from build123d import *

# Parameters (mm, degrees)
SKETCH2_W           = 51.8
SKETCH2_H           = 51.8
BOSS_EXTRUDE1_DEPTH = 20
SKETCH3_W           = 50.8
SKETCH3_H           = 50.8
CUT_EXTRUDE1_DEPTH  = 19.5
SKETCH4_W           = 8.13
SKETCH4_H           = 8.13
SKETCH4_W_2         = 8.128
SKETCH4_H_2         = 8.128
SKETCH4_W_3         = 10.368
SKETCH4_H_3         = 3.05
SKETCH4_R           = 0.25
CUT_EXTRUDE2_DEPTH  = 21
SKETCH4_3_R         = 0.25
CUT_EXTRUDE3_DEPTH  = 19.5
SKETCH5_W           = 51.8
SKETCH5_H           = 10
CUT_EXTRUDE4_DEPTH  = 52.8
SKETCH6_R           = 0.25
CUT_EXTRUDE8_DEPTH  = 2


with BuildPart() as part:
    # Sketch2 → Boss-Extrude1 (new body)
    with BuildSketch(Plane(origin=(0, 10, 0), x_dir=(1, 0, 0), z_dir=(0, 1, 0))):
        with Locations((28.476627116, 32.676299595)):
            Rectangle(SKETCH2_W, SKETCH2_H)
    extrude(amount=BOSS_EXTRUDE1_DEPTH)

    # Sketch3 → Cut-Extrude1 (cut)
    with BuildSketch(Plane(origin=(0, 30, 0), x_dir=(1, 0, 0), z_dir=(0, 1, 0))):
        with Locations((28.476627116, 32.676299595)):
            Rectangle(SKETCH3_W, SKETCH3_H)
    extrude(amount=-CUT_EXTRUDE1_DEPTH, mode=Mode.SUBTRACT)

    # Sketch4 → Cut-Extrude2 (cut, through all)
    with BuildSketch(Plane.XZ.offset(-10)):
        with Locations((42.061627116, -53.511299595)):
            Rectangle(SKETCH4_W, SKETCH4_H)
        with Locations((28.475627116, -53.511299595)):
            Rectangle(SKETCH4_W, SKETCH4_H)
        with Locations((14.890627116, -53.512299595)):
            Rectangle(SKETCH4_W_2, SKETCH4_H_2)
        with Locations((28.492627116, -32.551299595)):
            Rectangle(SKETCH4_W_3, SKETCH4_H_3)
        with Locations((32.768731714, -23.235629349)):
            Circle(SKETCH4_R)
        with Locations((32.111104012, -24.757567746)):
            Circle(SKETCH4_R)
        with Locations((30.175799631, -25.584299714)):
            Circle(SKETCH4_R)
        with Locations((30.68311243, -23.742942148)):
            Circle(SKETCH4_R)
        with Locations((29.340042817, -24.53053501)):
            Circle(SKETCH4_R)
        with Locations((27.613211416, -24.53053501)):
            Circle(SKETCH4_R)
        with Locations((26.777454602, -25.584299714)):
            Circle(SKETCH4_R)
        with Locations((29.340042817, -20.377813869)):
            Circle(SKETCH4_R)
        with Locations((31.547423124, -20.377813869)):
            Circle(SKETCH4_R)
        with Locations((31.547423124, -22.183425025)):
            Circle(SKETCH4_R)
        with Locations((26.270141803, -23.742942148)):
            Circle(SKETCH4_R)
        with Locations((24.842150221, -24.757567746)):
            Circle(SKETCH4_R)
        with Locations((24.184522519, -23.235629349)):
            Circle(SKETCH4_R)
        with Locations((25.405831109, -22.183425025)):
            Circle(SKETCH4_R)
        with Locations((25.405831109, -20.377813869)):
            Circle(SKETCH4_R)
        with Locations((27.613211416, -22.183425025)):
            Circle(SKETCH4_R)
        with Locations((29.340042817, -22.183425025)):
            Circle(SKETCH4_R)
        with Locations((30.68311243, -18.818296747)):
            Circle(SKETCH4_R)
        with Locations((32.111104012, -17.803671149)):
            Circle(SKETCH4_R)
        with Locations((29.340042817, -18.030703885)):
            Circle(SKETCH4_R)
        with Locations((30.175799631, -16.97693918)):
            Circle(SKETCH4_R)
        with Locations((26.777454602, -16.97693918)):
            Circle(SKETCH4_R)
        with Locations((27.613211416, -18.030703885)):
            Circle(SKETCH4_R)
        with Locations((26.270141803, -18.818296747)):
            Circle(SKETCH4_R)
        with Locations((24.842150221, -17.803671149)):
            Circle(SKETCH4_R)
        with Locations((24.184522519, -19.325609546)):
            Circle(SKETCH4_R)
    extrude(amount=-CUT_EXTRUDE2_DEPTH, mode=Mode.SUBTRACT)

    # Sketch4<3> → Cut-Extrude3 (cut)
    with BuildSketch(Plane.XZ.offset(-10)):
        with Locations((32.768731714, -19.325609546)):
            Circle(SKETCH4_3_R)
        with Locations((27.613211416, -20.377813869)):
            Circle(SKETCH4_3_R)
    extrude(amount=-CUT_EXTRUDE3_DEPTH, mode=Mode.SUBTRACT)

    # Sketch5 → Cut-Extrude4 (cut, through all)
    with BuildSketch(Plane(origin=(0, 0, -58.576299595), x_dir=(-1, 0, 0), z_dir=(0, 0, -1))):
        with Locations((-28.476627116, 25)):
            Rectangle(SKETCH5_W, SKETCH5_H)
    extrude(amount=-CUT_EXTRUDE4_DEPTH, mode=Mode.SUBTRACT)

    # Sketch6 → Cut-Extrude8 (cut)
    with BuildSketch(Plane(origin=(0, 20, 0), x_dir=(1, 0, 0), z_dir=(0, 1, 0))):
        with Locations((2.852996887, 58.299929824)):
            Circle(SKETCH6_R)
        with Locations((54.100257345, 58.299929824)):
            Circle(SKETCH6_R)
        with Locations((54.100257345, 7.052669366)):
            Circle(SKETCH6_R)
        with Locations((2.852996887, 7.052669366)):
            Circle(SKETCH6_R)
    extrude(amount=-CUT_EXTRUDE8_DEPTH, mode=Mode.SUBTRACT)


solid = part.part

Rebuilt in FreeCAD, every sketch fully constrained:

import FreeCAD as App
import Part
import Sketcher
from FreeCAD import Vector
Q = App.Units.Quantity

doc = App.newDocument("Part")
body = doc.addObject("PartDesign::Body", "Body")

sketch1 = body.newObject("Sketcher::SketchObject", "Sketch")
sketch1.AttachmentSupport = (doc.getObject("XZ_Plane"), [""])
sketch1.MapMode = "FlatFace"
sketch1.AttachmentOffset = App.Placement(Vector(0, 0, -10), App.Rotation())
sketch1.addGeometry([
    Part.LineSegment(Vector(3, -59, 0), Vector(3, -7, 0)),
    Part.LineSegment(Vector(3, -7, 0), Vector(54, -7, 0)),
    Part.LineSegment(Vector(54, -7, 0), Vector(54, -59, 0)),
    Part.LineSegment(Vector(54, -59, 0), Vector(3, -59, 0)),
], False)
sketch1.addConstraint([
    Sketcher.Constraint("Coincident", 0, 2, 1, 1),
    Sketcher.Constraint("Coincident", 1, 2, 2, 1),
    Sketcher.Constraint("Coincident", 2, 2, 3, 1),
    Sketcher.Constraint("Coincident", 3, 2, 0, 1),
    Sketcher.Constraint("Vertical", 0),
    Sketcher.Constraint("Horizontal", 1),
    Sketcher.Constraint("Vertical", 2),
    Sketcher.Constraint("Horizontal", 3),
    Sketcher.Constraint("Equal", 3, 0),
    Sketcher.Constraint("DistanceX", 1, 1, 1, 2, Q("51.8 mm")),
    Sketcher.Constraint("DistanceY", 0, 2, -1, 1, Q("6.7763 mm")),
    Sketcher.Constraint("DistanceX", -1, 1, 0, 2, Q("2.576627 mm")),
])
pad1 = body.newObject("PartDesign::Pad", "Pad")
pad1.Profile = sketch1
pad1.Length = 20
pad1.Reversed = True

sketch2 = body.newObject("Sketcher::SketchObject", "Sketch001")
sketch2.AttachmentSupport = (doc.getObject("XZ_Plane"), [""])
sketch2.MapMode = "FlatFace"
sketch2.AttachmentOffset = App.Placement(Vector(0, 0, -30), App.Rotation())
sketch2.addGeometry([
    Part.LineSegment(Vector(3, -58, 0), Vector(3, -7, 0)),
    Part.LineSegment(Vector(3, -7, 0), Vector(54, -7, 0)),
    Part.LineSegment(Vector(54, -7, 0), Vector(54, -58, 0)),
    Part.LineSegment(Vector(54, -58, 0), Vector(3, -58, 0)),
], False)
sketch2.addConstraint([
    Sketcher.Constraint("Coincident", 0, 2, 1, 1),
    Sketcher.Constraint("Coincident", 1, 2, 2, 1),
    Sketcher.Constraint("Coincident", 2, 2, 3, 1),
    Sketcher.Constraint("Coincident", 3, 2, 0, 1),
    Sketcher.Constraint("Vertical", 0),
    Sketcher.Constraint("Horizontal", 1),
    Sketcher.Constraint("Vertical", 2),
    Sketcher.Constraint("Horizontal", 3),
    Sketcher.Constraint("Equal", 3, 0),
    Sketcher.Constraint("DistanceX", 1, 1, 1, 2, Q("50.8 mm")),
    Sketcher.Constraint("DistanceY", 0, 2, -1, 1, Q("7.2763 mm")),
    Sketcher.Constraint("DistanceX", -1, 1, 0, 2, Q("3.076627 mm")),
])
pocket1 = body.newObject("PartDesign::Pocket", "Pocket")
pocket1.Profile = sketch2
pocket1.Length = 19.5
pocket1.Reversed = True

sketch3 = body.newObject("Sketcher::SketchObject", "Sketch002")
sketch3.AttachmentSupport = (doc.getObject("XZ_Plane"), [""])
sketch3.MapMode = "FlatFace"
sketch3.AttachmentOffset = App.Placement(Vector(0, 0, -10), App.Rotation())
sketch3.addGeometry([
    Part.LineSegment(Vector(38, -49.45, 0), Vector(38, -57.58, 0)),
    Part.LineSegment(Vector(38, -57.58, 0), Vector(46.13, -57.58, 0)),
    Part.LineSegment(Vector(46.13, -57.58, 0), Vector(46.13, -49.45, 0)),
    Part.LineSegment(Vector(46.13, -49.45, 0), Vector(38, -49.45, 0)),
    Part.LineSegment(Vector(24.41, -49.45, 0), Vector(24.41, -57.58, 0)),
    Part.LineSegment(Vector(24.41, -57.58, 0), Vector(32.54, -57.58, 0)),
    Part.LineSegment(Vector(32.54, -57.58, 0), Vector(32.54, -49.45, 0)),
    Part.LineSegment(Vector(32.54, -49.45, 0), Vector(24.41, -49.45, 0)),
    Part.LineSegment(Vector(10.83, -49.45, 0), Vector(10.83, -57.58, 0)),
    Part.LineSegment(Vector(10.83, -57.58, 0), Vector(18.95, -57.58, 0)),
    Part.LineSegment(Vector(18.95, -57.58, 0), Vector(18.95, -49.45, 0)),
    Part.LineSegment(Vector(18.95, -49.45, 0), Vector(10.83, -49.45, 0)),
    Part.LineSegment(Vector(23.31, -31.03, 0), Vector(23.31, -34.08, 0)),
    Part.LineSegment(Vector(23.31, -34.08, 0), Vector(33.68, -34.08, 0)),
    Part.LineSegment(Vector(33.68, -34.08, 0), Vector(33.68, -31.03, 0)),
    Part.LineSegment(Vector(33.68, -31.03, 0), Vector(23.31, -31.03, 0)),
    Part.Circle(Vector(32.77, -23.24, 0), Vector(0, 0, 1), 0.25),
    Part.Circle(Vector(32.11, -24.76, 0), Vector(0, 0, 1), 0.25),
    Part.Circle(Vector(30.18, -25.58, 0), Vector(0, 0, 1), 0.25),
    Part.Circle(Vector(30.68, -23.74, 0), Vector(0, 0, 1), 0.25),
    Part.Circle(Vector(29.34, -24.53, 0), Vector(0, 0, 1), 0.25),
    Part.Circle(Vector(27.61, -24.53, 0), Vector(0, 0, 1), 0.25),
    Part.Circle(Vector(26.78, -25.58, 0), Vector(0, 0, 1), 0.25),
    Part.Circle(Vector(29.34, -20.38, 0), Vector(0, 0, 1), 0.25),
    Part.Circle(Vector(31.55, -20.38, 0), Vector(0, 0, 1), 0.25),
    Part.Circle(Vector(31.55, -22.18, 0), Vector(0, 0, 1), 0.25),
    Part.Circle(Vector(26.27, -23.74, 0), Vector(0, 0, 1), 0.25),
    Part.Circle(Vector(24.84, -24.76, 0), Vector(0, 0, 1), 0.25),
    Part.Circle(Vector(24.18, -23.24, 0), Vector(0, 0, 1), 0.25),
    Part.Circle(Vector(25.41, -22.18, 0), Vector(0, 0, 1), 0.25),
    Part.Circle(Vector(25.41, -20.38, 0), Vector(0, 0, 1), 0.25),
    Part.Circle(Vector(27.61, -22.18, 0), Vector(0, 0, 1), 0.25),
    Part.Circle(Vector(29.34, -22.18, 0), Vector(0, 0, 1), 0.25),
    Part.Circle(Vector(30.68, -18.82, 0), Vector(0, 0, 1), 0.25),
    Part.Circle(Vector(32.11, -17.8, 0), Vector(0, 0, 1), 0.25),
    Part.Circle(Vector(29.34, -18.03, 0), Vector(0, 0, 1), 0.25),
    Part.Circle(Vector(30.18, -16.98, 0), Vector(0, 0, 1), 0.25),
    Part.Circle(Vector(26.78, -16.98, 0), Vector(0, 0, 1), 0.25),
    Part.Circle(Vector(27.61, -18.03, 0), Vector(0, 0, 1), 0.25),
    Part.Circle(Vector(26.27, -18.82, 0), Vector(0, 0, 1), 0.25),
    Part.Circle(Vector(24.84, -17.8, 0), Vector(0, 0, 1), 0.25),
    Part.Circle(Vector(24.18, -19.33, 0), Vector(0, 0, 1), 0.25),
], False)
sketch3.addConstraint([
    Sketcher.Constraint("Coincident", 0, 2, 1, 1),
    Sketcher.Constraint("Coincident", 1, 2, 2, 1),
    Sketcher.Constraint("Coincident", 2, 2, 3, 1),
    Sketcher.Constraint("Coincident", 3, 2, 0, 1),
    Sketcher.Constraint("Coincident", 4, 2, 5, 1),
    Sketcher.Constraint("Coincident", 5, 2, 6, 1),
    Sketcher.Constraint("Coincident", 6, 2, 7, 1),
    Sketcher.Constraint("Coincident", 7, 2, 4, 1),
    Sketcher.Constraint("Coincident", 8, 2, 9, 1),
    Sketcher.Constraint("Coincident", 9, 2, 10, 1),
    Sketcher.Constraint("Coincident", 10, 2, 11, 1),
    Sketcher.Constraint("Coincident", 11, 2, 8, 1),
    Sketcher.Constraint("Coincident", 12, 2, 13, 1),
    Sketcher.Constraint("Coincident", 13, 2, 14, 1),
    Sketcher.Constraint("Coincident", 14, 2, 15, 1),
    Sketcher.Constraint("Coincident", 15, 2, 12, 1),
    Sketcher.Constraint("Vertical", 0),
    Sketcher.Constraint("Horizontal", 1),
    Sketcher.Constraint("Vertical", 2),
    Sketcher.Constraint("Horizontal", 3),
    Sketcher.Constraint("Vertical", 4),
    Sketcher.Constraint("Horizontal", 5),
    Sketcher.Constraint("Vertical", 6),
    Sketcher.Constraint("Horizontal", 7),
    Sketcher.Constraint("Vertical", 8),
    Sketcher.Constraint("Horizontal", 9),
    Sketcher.Constraint("Vertical", 10),
    Sketcher.Constraint("Horizontal", 11),
    Sketcher.Constraint("Vertical", 12),
    Sketcher.Constraint("Horizontal", 13),
    Sketcher.Constraint("Vertical", 14),
    Sketcher.Constraint("Horizontal", 15),
    Sketcher.Constraint("Equal", 16, 17),
    Sketcher.Constraint("Equal", 17, 18),
    Sketcher.Constraint("Equal", 18, 19),
    Sketcher.Constraint("Equal", 19, 20),
    Sketcher.Constraint("Equal", 20, 21),
    Sketcher.Constraint("Equal", 21, 22),
    Sketcher.Constraint("Equal", 22, 23),
    Sketcher.Constraint("Equal", 23, 24),
    Sketcher.Constraint("Equal", 24, 25),
    Sketcher.Constraint("Equal", 25, 26),
    Sketcher.Constraint("Equal", 26, 27),
    Sketcher.Constraint("Equal", 27, 28),
    Sketcher.Constraint("Equal", 28, 29),
    Sketcher.Constraint("Equal", 29, 30),
    Sketcher.Constraint("Equal", 30, 31),
    Sketcher.Constraint("Equal", 31, 32),
    Sketcher.Constraint("Equal", 32, 33),
    Sketcher.Constraint("Equal", 33, 34),
    Sketcher.Constraint("Equal", 34, 35),
    Sketcher.Constraint("Equal", 35, 36),
    Sketcher.Constraint("Equal", 36, 37),
    Sketcher.Constraint("Equal", 37, 38),
    Sketcher.Constraint("Equal", 38, 39),
    Sketcher.Constraint("Equal", 39, 40),
    Sketcher.Constraint("Equal", 40, 41),
    Sketcher.Constraint("Horizontal", 20, 3, 21, 3),
    Sketcher.Constraint("Horizontal", 18, 3, 22, 3),
    Sketcher.Constraint("Horizontal", 23, 3, 24, 3),
    Sketcher.Constraint("Horizontal", 19, 3, 26, 3),
    Sketcher.Constraint("Horizontal", 17, 3, 27, 3),
    Sketcher.Constraint("Horizontal", 16, 3, 28, 3),
    Sketcher.Constraint("Horizontal", 25, 3, 29, 3),
    Sketcher.Constraint("Horizontal", 24, 3, 30, 3),
    Sketcher.Constraint("Horizontal", 29, 3, 31, 3),
    Sketcher.Constraint("Horizontal", 31, 3, 32, 3),
    Sketcher.Constraint("Horizontal", 36, 3, 37, 3),
    Sketcher.Constraint("Horizontal", 35, 3, 38, 3),
    Sketcher.Constraint("Horizontal", 33, 3, 39, 3),
    Sketcher.Constraint("Horizontal", 34, 3, 40, 3),
    Sketcher.Constraint("Horizontal", 1, 2, 4, 2),
    Sketcher.Constraint("Horizontal", 3, 2, 6, 2),
    Sketcher.Constraint("Horizontal", 5, 2, 8, 2),
    Sketcher.Constraint("Vertical", 20, 3, 23, 3),
    Sketcher.Constraint("Vertical", 24, 3, 25, 3),
    Sketcher.Constraint("Vertical", 29, 3, 30, 3),
    Sketcher.Constraint("Vertical", 21, 3, 31, 3),
    Sketcher.Constraint("Vertical", 23, 3, 32, 3),
    Sketcher.Constraint("Vertical", 19, 3, 33, 3),
    Sketcher.Constraint("Vertical", 17, 3, 34, 3),
    Sketcher.Constraint("Vertical", 32, 3, 35, 3),
    Sketcher.Constraint("Vertical", 18, 3, 36, 3),
    Sketcher.Constraint("Vertical", 22, 3, 37, 3),
    Sketcher.Constraint("Vertical", 31, 3, 38, 3),
    Sketcher.Constraint("Vertical", 26, 3, 39, 3),
    Sketcher.Constraint("Vertical", 27, 3, 40, 3),
    Sketcher.Constraint("Vertical", 28, 3, 41, 3),
    Sketcher.Constraint("Equal", 3, 5),
    Sketcher.Constraint("Equal", 7, 0),
    Sketcher.Constraint("Equal", 11, 8),
    Sketcher.Constraint("Diameter", 16, Q("0.5 mm")),
    Sketcher.Constraint("DistanceX", 1, 1, 1, 2, Q("8.13 mm")),
    Sketcher.Constraint("DistanceY", 12, 2, 12, 1, Q("3.05 mm")),
    Sketcher.Constraint("DistanceX", 9, 1, 9, 2, Q("8.128 mm")),
    Sketcher.Constraint("DistanceX", 13, 1, 13, 2, Q("10.368 mm")),
    Sketcher.Constraint("DistanceX", 8, 2, 0, 2, Q("27.17 mm")),
    Sketcher.Constraint("DistanceY", 0, 2, 18, 3, Q("31.992 mm")),
    Sketcher.Constraint("DistanceX", 4, 2, 0, 2, Q("13.586 mm")),
    Sketcher.Constraint("DistanceY", 12, 2, 22, 3, Q("8.492 mm")),
    Sketcher.Constraint("DistanceX", -1, 1, 18, 3, Q("30.1758 mm")),
    Sketcher.Constraint("DistanceY", 18, 3, -1, 1, Q("25.5843 mm")),
    Sketcher.Constraint("DistanceX", 21, 3, 19, 3, Q("3.069901 mm")),
    Sketcher.Constraint("DistanceX", 26, 3, 20, 3, Q("3.069901 mm")),
    Sketcher.Constraint("DistanceX", -1, 1, 16, 3, Q("32.768732 mm")),
    Sketcher.Constraint("DistanceY", 16, 3, -1, 1, Q("23.235629 mm")),
    Sketcher.Constraint("DistanceX", -1, 1, 21, 3, Q("27.613211 mm")),
    Sketcher.Constraint("DistanceX", -1, 1, 26, 3, Q("26.270142 mm")),
    Sketcher.Constraint("DistanceX", -1, 1, 27, 3, Q("24.84215 mm")),
    Sketcher.Constraint("DistanceX", -1, 1, 29, 3, Q("25.405831 mm")),
    Sketcher.Constraint("DistanceY", 34, 3, -1, 1, Q("17.803671 mm")),
    Sketcher.Constraint("DistanceY", 36, 3, -1, 1, Q("16.976939 mm")),
    Sketcher.Constraint("DistanceY", 41, 3, -1, 1, Q("19.32561 mm")),
    Sketcher.Constraint("DistanceY", 17, 3, 16, 3, Q("1.521938 mm")),
    Sketcher.Constraint("DistanceX", 19, 3, 17, 3, Q("1.427992 mm")),
    Sketcher.Constraint("DistanceX", 22, 3, 20, 3, Q("2.562588 mm")),
    Sketcher.Constraint("DistanceY", 19, 3, 23, 3, Q("3.365128 mm")),
    Sketcher.Constraint("DistanceY", 20, 3, 23, 3, Q("4.152721 mm")),
    Sketcher.Constraint("DistanceX", 23, 3, 24, 3, Q("2.20738 mm")),
    Sketcher.Constraint("DistanceY", 25, 3, 24, 3, Q("1.805611 mm")),
    Sketcher.Constraint("DistanceX", 28, 3, 26, 3, Q("2.085619 mm")),
    Sketcher.Constraint("DistanceY", 25, 3, 33, 3, Q("3.365128 mm")),
    Sketcher.Constraint("DistanceY", 23, 3, 35, 3, Q("2.34711 mm")),
    Sketcher.Constraint("DistanceY", 19, 3, -1, 1, Q("23.742942 mm")),
    Sketcher.Constraint("DistanceX", -1, 1, 0, 2, Q("37.996627 mm")),
    Sketcher.Constraint("DistanceX", -1, 1, 12, 2, Q("23.308627 mm")),
])
pocket2 = body.newObject("PartDesign::Pocket", "Pocket001")
pocket2.Profile = sketch3
pocket2.Type = "ThroughAll"

sketch4 = body.newObject("Sketcher::SketchObject", "Sketch003")
sketch4.AttachmentSupport = (doc.getObject("XZ_Plane"), [""])
sketch4.MapMode = "FlatFace"
sketch4.AttachmentOffset = App.Placement(Vector(0, 0, -10), App.Rotation())
sketch4.addGeometry([
    Part.Circle(Vector(32.77, -19.33, 0), Vector(0, 0, 1), 0.25),
    Part.Circle(Vector(27.61, -20.38, 0), Vector(0, 0, 1), 0.25),
], False)
sketch4.addConstraint([
    Sketcher.Constraint("Equal", 0, 1),
    Sketcher.Constraint("Diameter", 0, Q("0.5 mm")),
    Sketcher.Constraint("DistanceX", -1, 1, 0, 3, Q("32.768732 mm")),
    Sketcher.Constraint("DistanceY", 0, 3, -1, 1, Q("19.32561 mm")),
    Sketcher.Constraint("DistanceX", -1, 1, 1, 3, Q("27.613211 mm")),
    Sketcher.Constraint("DistanceY", 1, 3, -1, 1, Q("20.377814 mm")),
])
pocket3 = body.newObject("PartDesign::Pocket", "Pocket002")
pocket3.Profile = sketch4
pocket3.Length = 19.5

sketch5 = body.newObject("Sketcher::SketchObject", "Sketch004")
sketch5.AttachmentSupport = (doc.getObject("XY_Plane"), [""])
sketch5.MapMode = "FlatFace"
sketch5.AttachmentOffset = App.Placement(Vector(0, 0, -58.5763), App.Rotation())
sketch5.addGeometry([
    Part.LineSegment(Vector(54, 30, 0), Vector(54, 20, 0)),
    Part.LineSegment(Vector(54, 20, 0), Vector(3, 20, 0)),
    Part.LineSegment(Vector(3, 20, 0), Vector(3, 30, 0)),
    Part.LineSegment(Vector(3, 30, 0), Vector(54, 30, 0)),
], False)
sketch5.addConstraint([
    Sketcher.Constraint("Coincident", 0, 2, 1, 1),
    Sketcher.Constraint("Coincident", 1, 2, 2, 1),
    Sketcher.Constraint("Coincident", 2, 2, 3, 1),
    Sketcher.Constraint("Coincident", 3, 2, 0, 1),
    Sketcher.Constraint("Vertical", 0),
    Sketcher.Constraint("Horizontal", 1),
    Sketcher.Constraint("Vertical", 2),
    Sketcher.Constraint("Horizontal", 3),
    Sketcher.Constraint("DistanceY", 0, 2, 0, 1, Q("10 mm")),
    Sketcher.Constraint("DistanceX", 1, 2, 1, 1, Q("51.8 mm")),
    Sketcher.Constraint("DistanceY", -1, 1, 0, 2, Q("20 mm")),
    Sketcher.Constraint("DistanceX", -1, 1, 0, 2, Q("54.376627 mm")),
])
pocket4 = body.newObject("PartDesign::Pocket", "Pocket003")
pocket4.Profile = sketch5
pocket4.Type = "ThroughAll"
pocket4.Reversed = True

sketch6 = body.newObject("Sketcher::SketchObject", "Sketch005")
sketch6.AttachmentSupport = (doc.getObject("XZ_Plane"), [""])
sketch6.MapMode = "FlatFace"
sketch6.AttachmentOffset = App.Placement(Vector(0, 0, -20), App.Rotation())
sketch6.addGeometry([
    Part.Circle(Vector(2.85, -58.3, 0), Vector(0, 0, 1), 0.25),
    Part.Circle(Vector(54.1, -58.3, 0), Vector(0, 0, 1), 0.25),
    Part.Circle(Vector(54.1, -7.05, 0), Vector(0, 0, 1), 0.25),
    Part.Circle(Vector(2.85, -7.05, 0), Vector(0, 0, 1), 0.25),
], False)
sketch6.addConstraint([
    Sketcher.Constraint("Equal", 0, 1),
    Sketcher.Constraint("Equal", 1, 2),
    Sketcher.Constraint("Equal", 2, 3),
    Sketcher.Constraint("Horizontal", 0, 3, 1, 3),
    Sketcher.Constraint("Horizontal", 2, 3, 3, 3),
    Sketcher.Constraint("Vertical", 1, 3, 2, 3),
    Sketcher.Constraint("Vertical", 0, 3, 3, 3),
    Sketcher.Constraint("Diameter", 0, Q("0.5 mm")),
    Sketcher.Constraint("DistanceY", 0, 3, -1, 1, Q("58.29993 mm")),
    Sketcher.Constraint("DistanceY", 2, 3, -1, 1, Q("7.052669 mm")),
    Sketcher.Constraint("DistanceX", 0, 3, 1, 3, Q("51.24726 mm")),
    Sketcher.Constraint("DistanceX", -1, 1, 0, 3, Q("2.852997 mm")),
])
pocket5 = body.newObject("PartDesign::Pocket", "Pocket004")
pocket5.Profile = sketch6
pocket5.Length = 2
pocket5.Reversed = True

doc.recompute()
